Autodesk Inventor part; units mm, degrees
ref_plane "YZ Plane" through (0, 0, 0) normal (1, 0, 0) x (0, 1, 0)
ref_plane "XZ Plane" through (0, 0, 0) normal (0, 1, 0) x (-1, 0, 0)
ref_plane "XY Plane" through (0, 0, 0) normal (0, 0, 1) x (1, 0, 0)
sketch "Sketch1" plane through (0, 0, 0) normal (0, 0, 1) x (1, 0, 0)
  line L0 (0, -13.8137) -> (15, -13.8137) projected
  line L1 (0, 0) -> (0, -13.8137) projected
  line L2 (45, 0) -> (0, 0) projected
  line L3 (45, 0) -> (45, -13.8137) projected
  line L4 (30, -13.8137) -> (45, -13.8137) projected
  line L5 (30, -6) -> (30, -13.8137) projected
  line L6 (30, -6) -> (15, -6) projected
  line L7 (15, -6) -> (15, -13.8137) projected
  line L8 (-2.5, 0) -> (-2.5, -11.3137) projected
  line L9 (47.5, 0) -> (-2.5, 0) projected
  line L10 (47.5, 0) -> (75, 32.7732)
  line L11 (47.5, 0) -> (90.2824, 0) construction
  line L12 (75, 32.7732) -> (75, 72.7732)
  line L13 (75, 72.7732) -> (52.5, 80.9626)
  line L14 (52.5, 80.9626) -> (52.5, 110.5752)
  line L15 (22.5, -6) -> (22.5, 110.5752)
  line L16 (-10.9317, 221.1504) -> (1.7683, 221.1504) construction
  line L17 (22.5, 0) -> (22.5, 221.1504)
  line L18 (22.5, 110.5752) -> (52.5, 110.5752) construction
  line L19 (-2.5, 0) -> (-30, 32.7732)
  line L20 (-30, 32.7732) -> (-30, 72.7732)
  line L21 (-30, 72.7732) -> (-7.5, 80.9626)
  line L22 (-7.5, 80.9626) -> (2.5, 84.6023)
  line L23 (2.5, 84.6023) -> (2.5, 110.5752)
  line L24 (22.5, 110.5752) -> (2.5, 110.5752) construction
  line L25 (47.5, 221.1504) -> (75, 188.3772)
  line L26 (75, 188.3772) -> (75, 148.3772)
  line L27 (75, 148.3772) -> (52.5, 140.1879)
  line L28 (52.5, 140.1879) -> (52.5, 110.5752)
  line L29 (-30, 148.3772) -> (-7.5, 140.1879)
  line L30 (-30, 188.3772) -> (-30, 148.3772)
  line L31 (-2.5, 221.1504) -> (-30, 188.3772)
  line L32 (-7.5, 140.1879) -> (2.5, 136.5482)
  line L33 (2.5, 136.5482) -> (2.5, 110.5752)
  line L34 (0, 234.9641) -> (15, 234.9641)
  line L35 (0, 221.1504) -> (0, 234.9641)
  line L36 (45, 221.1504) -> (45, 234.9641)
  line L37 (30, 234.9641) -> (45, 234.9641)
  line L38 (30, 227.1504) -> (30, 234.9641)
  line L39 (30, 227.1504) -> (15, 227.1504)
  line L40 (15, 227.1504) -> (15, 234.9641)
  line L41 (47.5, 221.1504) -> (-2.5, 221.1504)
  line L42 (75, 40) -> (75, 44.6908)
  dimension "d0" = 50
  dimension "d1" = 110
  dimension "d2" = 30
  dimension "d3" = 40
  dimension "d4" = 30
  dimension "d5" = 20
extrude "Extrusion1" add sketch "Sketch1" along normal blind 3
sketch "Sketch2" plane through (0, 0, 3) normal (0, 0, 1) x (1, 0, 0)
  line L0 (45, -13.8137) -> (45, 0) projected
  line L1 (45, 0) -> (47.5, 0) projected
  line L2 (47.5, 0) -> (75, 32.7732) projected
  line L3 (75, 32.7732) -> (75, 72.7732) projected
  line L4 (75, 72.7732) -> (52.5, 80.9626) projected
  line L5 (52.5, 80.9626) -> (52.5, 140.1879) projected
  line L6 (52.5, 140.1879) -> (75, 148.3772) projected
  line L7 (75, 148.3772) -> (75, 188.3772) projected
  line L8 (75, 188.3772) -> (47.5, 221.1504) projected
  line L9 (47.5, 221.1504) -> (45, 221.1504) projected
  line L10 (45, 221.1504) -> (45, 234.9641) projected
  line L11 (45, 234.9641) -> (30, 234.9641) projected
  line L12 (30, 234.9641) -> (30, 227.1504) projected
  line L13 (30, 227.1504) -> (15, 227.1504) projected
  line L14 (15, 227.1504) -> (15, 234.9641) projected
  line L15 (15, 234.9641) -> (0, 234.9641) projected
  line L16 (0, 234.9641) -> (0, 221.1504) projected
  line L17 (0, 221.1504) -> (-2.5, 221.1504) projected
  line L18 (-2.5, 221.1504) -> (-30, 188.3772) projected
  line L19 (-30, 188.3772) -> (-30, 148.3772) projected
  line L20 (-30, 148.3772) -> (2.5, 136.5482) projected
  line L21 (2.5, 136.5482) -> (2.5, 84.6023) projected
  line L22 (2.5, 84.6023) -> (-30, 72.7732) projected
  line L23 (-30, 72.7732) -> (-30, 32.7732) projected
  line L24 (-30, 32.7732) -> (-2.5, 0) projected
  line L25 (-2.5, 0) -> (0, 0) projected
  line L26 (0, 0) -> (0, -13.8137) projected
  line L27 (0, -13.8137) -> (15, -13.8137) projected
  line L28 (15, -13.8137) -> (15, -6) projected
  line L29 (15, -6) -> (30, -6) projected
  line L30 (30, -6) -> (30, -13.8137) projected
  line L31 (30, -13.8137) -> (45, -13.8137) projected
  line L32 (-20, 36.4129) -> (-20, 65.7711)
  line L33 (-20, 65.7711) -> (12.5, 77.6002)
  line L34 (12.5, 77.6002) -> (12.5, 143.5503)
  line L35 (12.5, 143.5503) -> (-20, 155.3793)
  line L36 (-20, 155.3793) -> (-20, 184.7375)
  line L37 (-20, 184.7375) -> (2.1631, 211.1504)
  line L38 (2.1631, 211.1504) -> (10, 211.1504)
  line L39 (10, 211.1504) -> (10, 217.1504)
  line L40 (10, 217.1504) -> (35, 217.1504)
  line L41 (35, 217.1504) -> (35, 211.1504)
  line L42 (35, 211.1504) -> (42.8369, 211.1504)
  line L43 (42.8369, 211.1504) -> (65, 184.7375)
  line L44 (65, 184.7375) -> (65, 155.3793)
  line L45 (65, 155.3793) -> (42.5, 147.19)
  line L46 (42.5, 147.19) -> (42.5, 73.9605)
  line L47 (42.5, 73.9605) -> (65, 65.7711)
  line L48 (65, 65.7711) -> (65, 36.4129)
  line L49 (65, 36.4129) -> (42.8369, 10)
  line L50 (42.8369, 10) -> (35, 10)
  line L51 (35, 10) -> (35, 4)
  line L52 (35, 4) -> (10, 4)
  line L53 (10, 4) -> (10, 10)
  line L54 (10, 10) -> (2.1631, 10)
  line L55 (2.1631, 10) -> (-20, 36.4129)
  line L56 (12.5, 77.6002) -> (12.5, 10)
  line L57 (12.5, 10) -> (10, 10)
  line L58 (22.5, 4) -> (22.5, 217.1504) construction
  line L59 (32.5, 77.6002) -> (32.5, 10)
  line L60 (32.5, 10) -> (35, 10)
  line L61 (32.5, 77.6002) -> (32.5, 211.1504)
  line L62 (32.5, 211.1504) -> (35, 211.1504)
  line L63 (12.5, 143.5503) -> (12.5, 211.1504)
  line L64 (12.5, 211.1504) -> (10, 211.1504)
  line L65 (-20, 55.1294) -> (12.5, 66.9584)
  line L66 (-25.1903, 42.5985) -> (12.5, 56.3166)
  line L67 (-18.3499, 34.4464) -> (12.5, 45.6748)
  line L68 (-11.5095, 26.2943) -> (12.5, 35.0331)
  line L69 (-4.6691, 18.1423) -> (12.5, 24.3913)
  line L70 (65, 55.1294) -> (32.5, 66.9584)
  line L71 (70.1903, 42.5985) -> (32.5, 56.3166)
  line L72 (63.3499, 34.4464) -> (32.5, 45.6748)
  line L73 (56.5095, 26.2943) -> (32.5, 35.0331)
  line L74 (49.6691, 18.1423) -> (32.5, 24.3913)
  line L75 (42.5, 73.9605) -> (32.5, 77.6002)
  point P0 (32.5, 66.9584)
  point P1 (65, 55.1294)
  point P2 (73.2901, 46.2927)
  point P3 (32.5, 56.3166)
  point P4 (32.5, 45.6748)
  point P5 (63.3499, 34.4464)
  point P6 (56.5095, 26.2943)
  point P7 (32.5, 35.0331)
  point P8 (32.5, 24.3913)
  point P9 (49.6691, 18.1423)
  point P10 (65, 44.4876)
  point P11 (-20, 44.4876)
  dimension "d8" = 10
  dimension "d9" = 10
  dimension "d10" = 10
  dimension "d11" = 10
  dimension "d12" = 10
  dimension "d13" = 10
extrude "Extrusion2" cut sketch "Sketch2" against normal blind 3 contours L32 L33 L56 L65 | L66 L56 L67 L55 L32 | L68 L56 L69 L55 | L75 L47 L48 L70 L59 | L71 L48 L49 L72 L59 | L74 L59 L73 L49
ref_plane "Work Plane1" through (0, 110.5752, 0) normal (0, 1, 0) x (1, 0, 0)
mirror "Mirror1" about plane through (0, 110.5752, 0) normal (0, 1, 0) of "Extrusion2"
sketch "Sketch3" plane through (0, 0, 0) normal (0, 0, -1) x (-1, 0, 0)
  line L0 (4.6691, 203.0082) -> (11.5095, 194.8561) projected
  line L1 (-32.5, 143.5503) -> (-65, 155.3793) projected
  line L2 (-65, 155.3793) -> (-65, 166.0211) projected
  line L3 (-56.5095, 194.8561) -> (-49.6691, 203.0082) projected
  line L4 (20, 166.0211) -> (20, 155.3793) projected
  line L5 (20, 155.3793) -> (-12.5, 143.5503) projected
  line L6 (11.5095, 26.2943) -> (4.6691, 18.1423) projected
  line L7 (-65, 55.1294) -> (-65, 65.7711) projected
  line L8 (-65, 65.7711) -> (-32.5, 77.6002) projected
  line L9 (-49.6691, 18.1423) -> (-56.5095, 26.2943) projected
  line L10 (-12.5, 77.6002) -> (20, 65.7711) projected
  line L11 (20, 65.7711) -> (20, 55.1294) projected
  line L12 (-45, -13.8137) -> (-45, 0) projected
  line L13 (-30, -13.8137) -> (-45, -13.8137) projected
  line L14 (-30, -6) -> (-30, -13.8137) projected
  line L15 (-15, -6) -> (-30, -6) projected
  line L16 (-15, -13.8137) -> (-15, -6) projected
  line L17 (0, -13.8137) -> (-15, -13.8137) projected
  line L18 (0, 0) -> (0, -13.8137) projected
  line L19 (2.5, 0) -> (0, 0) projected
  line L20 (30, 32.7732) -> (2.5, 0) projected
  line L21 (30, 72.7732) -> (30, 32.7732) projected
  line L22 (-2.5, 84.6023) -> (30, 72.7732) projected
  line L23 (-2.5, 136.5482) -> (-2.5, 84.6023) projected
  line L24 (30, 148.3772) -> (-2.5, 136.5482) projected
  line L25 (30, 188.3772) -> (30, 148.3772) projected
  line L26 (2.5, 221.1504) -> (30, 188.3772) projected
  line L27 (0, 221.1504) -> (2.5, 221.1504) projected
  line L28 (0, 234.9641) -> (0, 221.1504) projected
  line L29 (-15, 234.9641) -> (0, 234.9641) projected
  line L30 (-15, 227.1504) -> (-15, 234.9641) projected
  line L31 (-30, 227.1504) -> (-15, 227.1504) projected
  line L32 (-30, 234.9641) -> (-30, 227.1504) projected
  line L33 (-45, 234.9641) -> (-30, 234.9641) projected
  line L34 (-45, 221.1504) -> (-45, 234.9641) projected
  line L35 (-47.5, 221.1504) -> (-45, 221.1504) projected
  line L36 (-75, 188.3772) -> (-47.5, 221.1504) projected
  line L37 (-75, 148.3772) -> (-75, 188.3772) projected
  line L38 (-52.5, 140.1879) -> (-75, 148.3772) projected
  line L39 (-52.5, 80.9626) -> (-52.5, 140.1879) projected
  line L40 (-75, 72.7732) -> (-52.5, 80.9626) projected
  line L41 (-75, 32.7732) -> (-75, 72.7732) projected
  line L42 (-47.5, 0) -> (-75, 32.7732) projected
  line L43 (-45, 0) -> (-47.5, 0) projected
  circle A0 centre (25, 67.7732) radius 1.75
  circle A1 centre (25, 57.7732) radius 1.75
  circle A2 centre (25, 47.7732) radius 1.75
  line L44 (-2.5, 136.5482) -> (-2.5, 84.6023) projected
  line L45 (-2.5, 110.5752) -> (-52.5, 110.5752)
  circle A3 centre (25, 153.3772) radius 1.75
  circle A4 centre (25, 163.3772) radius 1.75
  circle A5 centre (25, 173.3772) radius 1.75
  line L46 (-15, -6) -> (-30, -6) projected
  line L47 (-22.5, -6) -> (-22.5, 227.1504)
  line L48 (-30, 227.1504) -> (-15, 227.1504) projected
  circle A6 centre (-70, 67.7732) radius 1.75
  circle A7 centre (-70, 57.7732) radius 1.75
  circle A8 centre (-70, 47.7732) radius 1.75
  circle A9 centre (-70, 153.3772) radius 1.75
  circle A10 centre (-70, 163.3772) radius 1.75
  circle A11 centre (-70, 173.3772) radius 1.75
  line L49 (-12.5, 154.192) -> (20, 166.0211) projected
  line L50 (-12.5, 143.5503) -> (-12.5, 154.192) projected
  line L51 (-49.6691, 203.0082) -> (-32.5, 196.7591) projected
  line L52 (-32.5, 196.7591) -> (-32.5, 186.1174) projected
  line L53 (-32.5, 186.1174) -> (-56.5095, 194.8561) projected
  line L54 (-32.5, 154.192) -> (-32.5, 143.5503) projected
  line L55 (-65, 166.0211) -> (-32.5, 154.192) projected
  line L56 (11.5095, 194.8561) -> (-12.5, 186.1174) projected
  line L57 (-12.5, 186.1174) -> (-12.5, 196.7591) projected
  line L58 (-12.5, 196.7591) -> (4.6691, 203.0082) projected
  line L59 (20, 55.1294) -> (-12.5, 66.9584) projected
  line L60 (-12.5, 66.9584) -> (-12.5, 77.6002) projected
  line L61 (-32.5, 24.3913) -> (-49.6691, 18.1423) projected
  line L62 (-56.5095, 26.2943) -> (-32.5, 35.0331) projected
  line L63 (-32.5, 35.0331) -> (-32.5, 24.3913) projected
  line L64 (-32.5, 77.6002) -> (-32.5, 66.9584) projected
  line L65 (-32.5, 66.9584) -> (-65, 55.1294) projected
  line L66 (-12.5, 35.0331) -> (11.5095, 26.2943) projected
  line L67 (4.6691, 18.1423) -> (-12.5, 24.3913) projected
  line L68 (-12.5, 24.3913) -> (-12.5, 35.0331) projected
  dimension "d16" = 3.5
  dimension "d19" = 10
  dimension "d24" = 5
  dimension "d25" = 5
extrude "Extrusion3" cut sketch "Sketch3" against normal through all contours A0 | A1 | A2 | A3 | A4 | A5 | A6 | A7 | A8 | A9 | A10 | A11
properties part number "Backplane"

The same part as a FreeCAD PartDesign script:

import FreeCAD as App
import Part
import Sketcher
from FreeCAD import Vector
Q = App.Units.Quantity


def add_polygon(sketch, points):
    """Adds a closed chain of lines whose ends are joined by coincident constraints."""
    first, n = sketch.GeometryCount, len(points)
    for a, b in zip(points, points[1:] + points[:1]):
        sketch.addGeometry(Part.LineSegment(App.Vector(*a, 0), App.Vector(*b, 0)), False)
    for i in range(n):
        sketch.addConstraint(Sketcher.Constraint("Coincident", first + i, 2, first + (i + 1) % n, 1))

doc = App.newDocument("Part")
body = doc.addObject("PartDesign::Body", "Body")

# Sketch on XY plane
sketch1 = body.newObject("Sketcher::SketchObject", "Sketch")
sketch1.AttachmentSupport = (doc.getObject("XY_Plane"), [""])
sketch1.MapMode = "FlatFace"
add_polygon(sketch1, [(0, 0), (0, -13.8), (15, -13.8), (15, -6), (30, -6), (30, -13.8), (45, -13.8), (45, 0), (47.5, 0), (75, 32.8), (75, 72.8), (52.5, 81), (52.5, 140.2), (75, 148.4), (75, 188.4), (47.5, 221.2), (45, 221.2), (45, 235), (30, 235), (30, 227.2), (15, 227.2), (15, 235), (0, 235), (0, 221.2), (-2.5, 221.2), (-30, 188.4), (-30, 148.4), (-7.5, 140.2), (2.5, 136.5), (2.5, 84.6), (-7.5, 81), (-30, 72.8), (-30, 32.8), (-2.5, 0)])  # lines 0-33
sketch1.addConstraint([
    Sketcher.Constraint("Vertical", 0),
    Sketcher.Constraint("Horizontal", 1),
    Sketcher.Constraint("Vertical", 2),
    Sketcher.Constraint("Horizontal", 3),
    Sketcher.Constraint("Vertical", 4),
    Sketcher.Constraint("Horizontal", 5),
    Sketcher.Constraint("Vertical", 6),
    Sketcher.Constraint("Horizontal", 7),
    Sketcher.Constraint("Vertical", 9),
    Sketcher.Constraint("Vertical", 11),
    Sketcher.Constraint("Vertical", 13),
    Sketcher.Constraint("Horizontal", 15),
    Sketcher.Constraint("Vertical", 16),
    Sketcher.Constraint("Horizontal", 17),
    Sketcher.Constraint("Vertical", 18),
    Sketcher.Constraint("Horizontal", 19),
    Sketcher.Constraint("Vertical", 20),
    Sketcher.Constraint("Horizontal", 21),
    Sketcher.Constraint("Vertical", 22),
    Sketcher.Constraint("Horizontal", 23),
    Sketcher.Constraint("Vertical", 25),
    Sketcher.Constraint("Vertical", 28),
    Sketcher.Constraint("Vertical", 31),
    Sketcher.Constraint("Horizontal", 33),
    Sketcher.Constraint("Coincident", 33, 2, -1, 1),
    Sketcher.Constraint("PointOnObject", 6, 2, -1),
    Sketcher.Constraint("PointOnObject", 21, 2, -2),
    Sketcher.Constraint("Parallel", 8, 24),
    Sketcher.Constraint("Parallel", 10, 26),
    Sketcher.Constraint("Parallel", 26, 27),
    Sketcher.Constraint("Parallel", 12, 29),
    Sketcher.Constraint("Parallel", 29, 30),
    Sketcher.Constraint("Parallel", 14, 32),
    Sketcher.Constraint("Horizontal", 1, 2, 4, 2),
    Sketcher.Constraint("Horizontal", 17, 2, 20, 2),
    Sketcher.Constraint("Horizontal", 15, 2, 22, 2),
    Sketcher.Constraint("Horizontal", 13, 2, 24, 2),
    Sketcher.Constraint("Horizontal", 12, 2, 25, 2),
    Sketcher.Constraint("Horizontal", 11, 2, 26, 2),
    Sketcher.Constraint("Horizontal", 10, 2, 29, 2),
    Sketcher.Constraint("Horizontal", 9, 2, 30, 2),
    Sketcher.Constraint("Horizontal", 8, 2, 31, 2),
    Sketcher.Constraint("Vertical", 9, 2, 12, 2),
    Sketcher.Constraint("Vertical", 7, 2, 14, 2),
    Sketcher.Constraint("Vertical", 6, 2, 15, 2),
    Sketcher.Constraint("Vertical", 4, 2, 17, 2),
    Sketcher.Constraint("Vertical", 2, 2, 19, 2),
    Sketcher.Constraint("Vertical", 26, 2, 29, 2),
    Sketcher.Constraint("Vertical", 25, 2, 30, 2),
    Sketcher.Constraint("Vertical", 23, 2, 32, 2),
    Sketcher.Constraint("Equal", 1, 3),
    Sketcher.Constraint("Equal", 3, 5),
    Sketcher.Constraint("Equal", 15, 23),
    Sketcher.Constraint("Equal", 9, 13),
    Sketcher.Constraint("Equal", 6, 16),
    Sketcher.Constraint("Equal", 4, 18),
    Sketcher.Constraint("DistanceY", 9, 1, 9, 2, Q("40 mm")),
    Sketcher.Constraint("Angle", 8, Q("50 deg")),
    Sketcher.Constraint("Angle", 12, Q("20 deg")),
    Sketcher.Constraint("DistanceX", -1, 1, 3, 2, Q("30 mm")),
    Sketcher.Constraint("DistanceX", 24, 2, -1, 1, Q("30 mm")),
    Sketcher.Constraint("DistanceX", 27, 2, 11, 2, Q("50 mm")),
    Sketcher.Constraint("DistanceX", 7, 1, 7, 2, Q("2.5 mm")),
    Sketcher.Constraint("DistanceY", 2, 2, -1, 1, Q("6 mm")),
    Sketcher.Constraint("DistanceX", 7, 2, 10, 2, Q("5 mm")),
    Sketcher.Constraint("DistanceY", 28, 2, 28, 1, Q("51.946 mm")),
    Sketcher.Constraint("DistanceY", 0, 2, 0, 1, Q("13.8137 mm")),
])
pad1 = body.newObject("PartDesign::Pad", "Pad")
pad1.Profile = sketch1
pad1.Length = 3

# Sketch on XY plane
sketch2 = body.newObject("Sketcher::SketchObject", "Sketch001")
sketch2.AttachmentSupport = (doc.getObject("XY_Plane"), [""])
sketch2.MapMode = "FlatFace"
sketch2.AttachmentOffset = App.Placement(Vector(0, 0, 3), App.Rotation())
add_polygon(sketch2, [(-20, 65.8), (-20, 55.1), (12.5, 67), (12.5, 77.6)])  # lines 0-3
add_polygon(sketch2, [(12.5, 56.3), (-20, 44.5), (-20, 36.4), (-18.3, 34.4), (12.5, 45.7)])  # lines 4-8
add_polygon(sketch2, [(12.5, 35), (-11.5, 26.3), (-4.7, 18.1), (12.5, 24.4)])  # lines 9-12
add_polygon(sketch2, [(42.5, 74), (32.5, 77.6), (32.5, 67), (65, 55.1), (65, 65.8)])  # lines 13-17
add_polygon(sketch2, [(65, 44.5), (32.5, 56.3), (32.5, 45.7), (63.3, 34.4), (65, 36.4)])  # lines 18-22
add_polygon(sketch2, [(32.5, 24.4), (49.7, 18.1), (56.5, 26.3), (32.5, 35)])  # lines 23-26
sketch2.addConstraint([
    Sketcher.Constraint("Vertical", 0),
    Sketcher.Constraint("Vertical", 2),
    Sketcher.Constraint("Vertical", 5),
    Sketcher.Constraint("Vertical", 8),
    Sketcher.Constraint("Vertical", 12),
    Sketcher.Constraint("Vertical", 14),
    Sketcher.Constraint("Vertical", 16),
    Sketcher.Constraint("Vertical", 19),
    Sketcher.Constraint("Vertical", 22),
    Sketcher.Constraint("Vertical", 26),
    Sketcher.Constraint("Parallel", 1, 3),
    Sketcher.Constraint("Parallel", 3, 4),
    Sketcher.Constraint("Parallel", 4, 7),
    Sketcher.Constraint("Parallel", 7, 9),
    Sketcher.Constraint("Parallel", 6, 10),
    Sketcher.Constraint("Parallel", 9, 11),
    Sketcher.Constraint("Parallel", 13, 15),
    Sketcher.Constraint("Parallel", 15, 17),
    Sketcher.Constraint("Parallel", 17, 18),
    Sketcher.Constraint("Parallel", 18, 20),
    Sketcher.Constraint("Parallel", 20, 23),
    Sketcher.Constraint("Parallel", 21, 24),
    Sketcher.Constraint("Parallel", 23, 25),
    Sketcher.Constraint("Horizontal", 2, 2, 13, 2),
    Sketcher.Constraint("Horizontal", 1, 2, 14, 2),
    Sketcher.Constraint("Horizontal", 0, 2, 15, 2),
    Sketcher.Constraint("Horizontal", 8, 2, 18, 2),
    Sketcher.Constraint("Horizontal", 7, 2, 19, 2),
    Sketcher.Constraint("Horizontal", 6, 2, 20, 2),
    Sketcher.Constraint("Horizontal", 5, 2, 21, 2),
    Sketcher.Constraint("Horizontal", 4, 2, 22, 2),
    Sketcher.Constraint("Horizontal", 10, 2, 23, 2),
    Sketcher.Constraint("Horizontal", 9, 2, 24, 2),
    Sketcher.Constraint("Horizontal", 12, 2, 25, 2),
    Sketcher.Constraint("Vertical", 3, 2, 4, 2),
    Sketcher.Constraint("Vertical", 2, 2, 7, 2),
    Sketcher.Constraint("Vertical", 8, 2, 11, 2),
    Sketcher.Constraint("Vertical", 14, 2, 18, 2),
    Sketcher.Constraint("Vertical", 19, 2, 25, 2),
    Sketcher.Constraint("Equal", 2, 8),
    Sketcher.Constraint("Equal", 8, 12),
    Sketcher.Constraint("Equal", 10, 13),
    Sketcher.Constraint("Equal", 4, 15),
    Sketcher.Constraint("DistanceX", 13, 2, 17, 2, Q("10 mm")),
    Sketcher.Constraint("Angle", 1, Q("20 deg")),
    Sketcher.Constraint("Angle", 6, Q("-50 deg")),
    Sketcher.Constraint("DistanceX", 0, 2, -1, 1, Q("20 mm")),
    Sketcher.Constraint("DistanceX", -1, 1, 15, 2, Q("65 mm")),
    Sketcher.Constraint("DistanceX", 2, 2, 13, 2, Q("20 mm")),
    Sketcher.Constraint("DistanceX", 6, 2, -1, 1, Q("18.35 mm")),
    Sketcher.Constraint("Distance", 11, Q("18.271 mm")),
    Sketcher.Constraint("DistanceY", -1, 1, 3, 2, Q("65.771 mm")),
    Sketcher.Constraint("DistanceY", -1, 1, 5, 2, Q("36.413 mm")),
    Sketcher.Constraint("DistanceY", -1, 1, 12, 2, Q("35.033 mm")),
])
pocket1 = body.newObject("PartDesign::Pocket", "Pocket")
pocket1.Profile = sketch2
pocket1.Length = 3
doc.recompute()

datumplane = body.newObject("PartDesign::Plane", "DatumPlane")
datumplane.AttachmentSupport = (doc.getObject("XZ_Plane"), [""])
datumplane.MapMode = "FlatFace"
datumplane.AttachmentOffset = App.Placement(Vector(0, 0, -110.5752), App.Rotation())
mirrored = body.newObject("PartDesign::Mirrored", "Mirrored")
mirrored.Originals = [pocket1]
mirrored.MirrorPlane = (datumplane, [""])
body.Tip = mirrored

# Sketch on XY plane
sketch3 = body.newObject("Sketcher::SketchObject", "Sketch002")
sketch3.AttachmentSupport = (doc.getObject("XY_Plane"), [""])
sketch3.MapMode = "FlatFace"
sketch3.addGeometry([
    Part.Circle(Vector(-25, 67.8, 0), Vector(0, 0, 1), 1.8),  # 0
    Part.Circle(Vector(-25, 57.8, 0), Vector(0, 0, 1), 1.8),  # 1
    Part.Circle(Vector(-25, 47.8, 0), Vector(0, 0, 1), 1.8),  # 2
    Part.Circle(Vector(-25, 153.4, 0), Vector(0, 0, 1), 1.8),  # 3
    Part.Circle(Vector(-25, 163.4, 0), Vector(0, 0, 1), 1.8),  # 4
    Part.Circle(Vector(-25, 173.4, 0), Vector(0, 0, 1), 1.8),  # 5
    Part.Circle(Vector(70, 67.8, 0), Vector(0, 0, 1), 1.8),  # 6
    Part.Circle(Vector(70, 57.8, 0), Vector(0, 0, 1), 1.8),  # 7
    Part.Circle(Vector(70, 47.8, 0), Vector(0, 0, 1), 1.8),  # 8
    Part.Circle(Vector(70, 153.4, 0), Vector(0, 0, 1), 1.8),  # 9
    Part.Circle(Vector(70, 163.4, 0), Vector(0, 0, 1), 1.8),  # 10
    Part.Circle(Vector(70, 173.4, 0), Vector(0, 0, 1), 1.8),  # 11
], False)
sketch3.addConstraint([
    Sketcher.Constraint("Equal", 0, 1),
    Sketcher.Constraint("Equal", 1, 2),
    Sketcher.Constraint("Equal", 2, 3),
    Sketcher.Constraint("Equal", 3, 4),
    Sketcher.Constraint("Equal", 4, 5),
    Sketcher.Constraint("Equal", 5, 6),
    Sketcher.Constraint("Equal", 6, 7),
    Sketcher.Constraint("Equal", 7, 8),
    Sketcher.Constraint("Equal", 8, 9),
    Sketcher.Constraint("Equal", 9, 10),
    Sketcher.Constraint("Equal", 10, 11),
    Sketcher.Constraint("Horizontal", 0, 3, 6, 3),
    Sketcher.Constraint("Horizontal", 1, 3, 7, 3),
    Sketcher.Constraint("Horizontal", 2, 3, 8, 3),
    Sketcher.Constraint("Horizontal", 3, 3, 9, 3),
    Sketcher.Constraint("Horizontal", 4, 3, 10, 3),
    Sketcher.Constraint("Horizontal", 5, 3, 11, 3),
    Sketcher.Constraint("Vertical", 0, 3, 1, 3),
    Sketcher.Constraint("Vertical", 1, 3, 2, 3),
    Sketcher.Constraint("Vertical", 2, 3, 3, 3),
    Sketcher.Constraint("Vertical", 3, 3, 4, 3),
    Sketcher.Constraint("Vertical", 4, 3, 5, 3),
    Sketcher.Constraint("Vertical", 6, 3, 7, 3),
    Sketcher.Constraint("Vertical", 7, 3, 8, 3),
    Sketcher.Constraint("Vertical", 8, 3, 9, 3),
    Sketcher.Constraint("Vertical", 9, 3, 10, 3),
    Sketcher.Constraint("Vertical", 10, 3, 11, 3),
    Sketcher.Constraint("Diameter", 0, Q("3.5 mm")),
    Sketcher.Constraint("DistanceY", 1, 3, 0, 3, Q("10 mm")),
    Sketcher.Constraint("DistanceY", 2, 3, 1, 3, Q("10 mm")),
    Sketcher.Constraint("DistanceY", 3, 3, 4, 3, Q("10 mm")),
    Sketcher.Constraint("DistanceY", 4, 3, 5, 3, Q("10 mm")),
    Sketcher.Constraint("DistanceX", 0, 3, -1, 1, Q("25 mm")),
    Sketcher.Constraint("DistanceX", -1, 1, 6, 3, Q("70 mm")),
    Sketcher.Constraint("DistanceY", 0, 3, 3, 3, Q("85.604 mm")),
    Sketcher.Constraint("DistanceY", -1, 1, 0, 3, Q("67.7732 mm")),
])
pocket2 = body.newObject("PartDesign::Pocket", "Pocket001")
pocket2.Profile = sketch3
pocket2.Type = "ThroughAll"
pocket2.Reversed = True

doc.recompute()
